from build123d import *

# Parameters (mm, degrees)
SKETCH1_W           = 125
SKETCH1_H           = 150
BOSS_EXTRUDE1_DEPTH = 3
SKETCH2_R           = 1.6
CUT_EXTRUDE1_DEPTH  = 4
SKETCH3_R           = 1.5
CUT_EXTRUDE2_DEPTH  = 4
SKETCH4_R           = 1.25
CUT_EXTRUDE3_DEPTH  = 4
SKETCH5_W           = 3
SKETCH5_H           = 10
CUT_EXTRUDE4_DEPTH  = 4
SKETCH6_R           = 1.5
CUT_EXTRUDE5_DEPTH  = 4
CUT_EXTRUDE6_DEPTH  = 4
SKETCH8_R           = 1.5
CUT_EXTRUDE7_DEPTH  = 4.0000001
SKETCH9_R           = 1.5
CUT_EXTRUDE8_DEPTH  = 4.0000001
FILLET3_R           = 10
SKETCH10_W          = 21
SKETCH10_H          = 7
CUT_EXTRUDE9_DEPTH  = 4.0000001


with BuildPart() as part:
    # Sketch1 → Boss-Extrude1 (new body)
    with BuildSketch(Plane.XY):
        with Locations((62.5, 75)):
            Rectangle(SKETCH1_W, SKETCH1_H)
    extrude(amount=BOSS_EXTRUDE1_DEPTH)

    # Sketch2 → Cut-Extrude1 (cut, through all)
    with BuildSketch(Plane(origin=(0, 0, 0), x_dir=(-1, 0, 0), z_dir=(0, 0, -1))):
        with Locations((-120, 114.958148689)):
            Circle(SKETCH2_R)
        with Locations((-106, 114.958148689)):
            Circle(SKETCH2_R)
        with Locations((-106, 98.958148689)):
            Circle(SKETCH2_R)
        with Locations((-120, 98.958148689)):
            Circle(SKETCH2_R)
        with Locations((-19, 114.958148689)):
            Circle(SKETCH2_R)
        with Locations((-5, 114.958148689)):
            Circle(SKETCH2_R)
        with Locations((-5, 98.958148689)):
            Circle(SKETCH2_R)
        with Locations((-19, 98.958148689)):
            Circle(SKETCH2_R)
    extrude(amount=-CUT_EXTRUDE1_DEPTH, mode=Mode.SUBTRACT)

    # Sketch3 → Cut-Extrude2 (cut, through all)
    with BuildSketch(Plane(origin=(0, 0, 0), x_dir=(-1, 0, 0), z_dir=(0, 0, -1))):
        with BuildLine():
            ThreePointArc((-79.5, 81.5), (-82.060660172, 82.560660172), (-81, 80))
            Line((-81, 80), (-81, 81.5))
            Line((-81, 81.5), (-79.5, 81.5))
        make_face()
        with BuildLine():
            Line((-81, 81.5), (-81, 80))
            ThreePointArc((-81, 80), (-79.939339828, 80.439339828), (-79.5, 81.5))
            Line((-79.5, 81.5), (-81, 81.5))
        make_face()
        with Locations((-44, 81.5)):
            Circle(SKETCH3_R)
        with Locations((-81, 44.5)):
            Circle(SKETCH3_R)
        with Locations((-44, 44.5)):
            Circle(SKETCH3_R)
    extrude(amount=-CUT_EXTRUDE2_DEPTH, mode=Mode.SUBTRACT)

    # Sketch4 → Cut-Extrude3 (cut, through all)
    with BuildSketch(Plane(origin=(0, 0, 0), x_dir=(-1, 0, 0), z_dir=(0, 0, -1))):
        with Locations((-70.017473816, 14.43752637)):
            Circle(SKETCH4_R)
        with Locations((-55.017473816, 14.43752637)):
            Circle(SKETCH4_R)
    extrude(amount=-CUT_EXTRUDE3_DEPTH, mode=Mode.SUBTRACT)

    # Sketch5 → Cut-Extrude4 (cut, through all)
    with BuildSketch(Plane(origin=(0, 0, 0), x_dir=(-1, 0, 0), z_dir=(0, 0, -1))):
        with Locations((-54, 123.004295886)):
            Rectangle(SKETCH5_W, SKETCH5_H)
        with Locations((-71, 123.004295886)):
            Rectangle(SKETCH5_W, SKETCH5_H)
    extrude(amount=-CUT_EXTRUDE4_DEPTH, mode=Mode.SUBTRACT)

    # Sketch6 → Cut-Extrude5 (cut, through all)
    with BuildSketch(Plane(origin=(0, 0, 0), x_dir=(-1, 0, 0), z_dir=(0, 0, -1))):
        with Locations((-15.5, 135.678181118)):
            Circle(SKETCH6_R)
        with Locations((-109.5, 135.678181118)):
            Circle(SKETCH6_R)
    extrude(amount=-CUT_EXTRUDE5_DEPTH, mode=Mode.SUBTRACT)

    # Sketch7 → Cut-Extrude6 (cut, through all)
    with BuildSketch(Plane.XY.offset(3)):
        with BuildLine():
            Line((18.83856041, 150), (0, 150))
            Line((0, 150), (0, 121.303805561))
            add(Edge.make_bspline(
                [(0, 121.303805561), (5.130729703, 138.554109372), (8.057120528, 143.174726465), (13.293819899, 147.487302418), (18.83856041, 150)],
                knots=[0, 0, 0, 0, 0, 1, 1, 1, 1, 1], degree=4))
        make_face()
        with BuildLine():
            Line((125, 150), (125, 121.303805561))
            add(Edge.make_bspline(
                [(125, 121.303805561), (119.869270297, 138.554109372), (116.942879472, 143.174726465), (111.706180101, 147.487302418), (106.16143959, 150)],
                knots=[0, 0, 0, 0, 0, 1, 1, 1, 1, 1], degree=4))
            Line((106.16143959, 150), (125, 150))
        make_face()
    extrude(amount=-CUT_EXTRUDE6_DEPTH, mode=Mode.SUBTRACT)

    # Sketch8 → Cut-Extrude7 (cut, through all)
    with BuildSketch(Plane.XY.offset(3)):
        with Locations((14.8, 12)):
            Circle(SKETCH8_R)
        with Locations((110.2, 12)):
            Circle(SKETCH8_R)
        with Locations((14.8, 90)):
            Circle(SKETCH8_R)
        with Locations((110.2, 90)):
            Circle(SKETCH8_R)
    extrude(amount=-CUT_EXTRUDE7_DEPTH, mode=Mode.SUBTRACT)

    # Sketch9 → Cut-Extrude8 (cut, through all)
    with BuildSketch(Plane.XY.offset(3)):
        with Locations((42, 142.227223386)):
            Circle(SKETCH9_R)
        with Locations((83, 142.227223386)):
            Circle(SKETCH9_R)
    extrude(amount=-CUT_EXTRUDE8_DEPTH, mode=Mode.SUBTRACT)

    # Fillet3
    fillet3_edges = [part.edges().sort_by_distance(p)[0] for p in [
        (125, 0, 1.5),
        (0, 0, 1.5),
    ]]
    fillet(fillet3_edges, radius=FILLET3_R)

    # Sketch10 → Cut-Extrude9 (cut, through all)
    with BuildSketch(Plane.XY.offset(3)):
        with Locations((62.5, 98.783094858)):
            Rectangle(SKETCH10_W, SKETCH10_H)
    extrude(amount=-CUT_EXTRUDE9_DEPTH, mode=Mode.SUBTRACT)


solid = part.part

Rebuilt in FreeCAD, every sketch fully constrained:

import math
import FreeCAD as App
import Part
import Sketcher

V = App.Vector


def edges_at(feature, points):
    """Names of the edges that pass closest to the given points."""
    edges = feature.Shape.Edges
    near = lambda p: min(range(len(edges)), key=lambda i: edges[i].distToShape(Part.Vertex(*p))[0])
    return sorted({f"Edge{near(p) + 1}" for p in points})

doc = App.newDocument("Part")
params = doc.addObject("Spreadsheet::Sheet", "Params")
for row, (alias, value) in enumerate([
    ("sketch1_width", "125 mm"),
    ("sketch1_height", "150 mm"),
    ("pad1_length", "3 mm"),
    ("sketch2_diameter", "3.2 mm"),
    ("sketch3_diameter", "3 mm"),
    ("sketch4_diameter", "2.5 mm"),
    ("sketch5_width", "3 mm"),
    ("sketch5_height", "10 mm"),
    ("sketch6_diameter", "3 mm"),
    ("sketch8_diameter", "3 mm"),
    ("sketch9_diameter", "3 mm"),
    ("fillet_radius", "10 mm"),
    ("sketch10_width", "21 mm"),
    ("sketch10_height", "7 mm"),
], start=1):
    params.set(f"A{row}", alias)
    params.set(f"B{row}", "=" + value)
    params.setAlias(f"B{row}", alias)

body = doc.addObject("PartDesign::Body", "Body")

# Sketch on XY plane
sketch1 = body.newObject("Sketcher::SketchObject", "Sketch")
sketch1.AttachmentSupport = (doc.getObject("XY_Plane"), [""])
sketch1.MapMode = "FlatFace"
sketch1.addGeometry(Part.LineSegment(V(0, 150, 0), V(0, 0, 0)), False)
sketch1.addGeometry(Part.LineSegment(V(0, 0, 0), V(125, 0, 0)), False)
sketch1.addGeometry(Part.LineSegment(V(125, 0, 0), V(125, 150, 0)), False)
sketch1.addGeometry(Part.LineSegment(V(125, 150, 0), V(0, 150, 0)), False)
sketch1.addConstraint(Sketcher.Constraint("Coincident", 0, 2, 1, 1))
sketch1.addConstraint(Sketcher.Constraint("Coincident", 1, 2, 2, 1))
sketch1.addConstraint(Sketcher.Constraint("Coincident", 2, 2, 3, 1))
sketch1.addConstraint(Sketcher.Constraint("Coincident", 3, 2, 0, 1))
sketch1.addConstraint(Sketcher.Constraint("Vertical", 0))
sketch1.addConstraint(Sketcher.Constraint("Horizontal", 1))
sketch1.addConstraint(Sketcher.Constraint("Vertical", 2))
sketch1.addConstraint(Sketcher.Constraint("Horizontal", 3))
sketch1.addConstraint(Sketcher.Constraint("Coincident", 0, 2, -1, 1))
sketch1.addConstraint(Sketcher.Constraint("DistanceX", 1, 1, 1, 2, 125.0))
sketch1.addConstraint(Sketcher.Constraint("DistanceY", 0, 2, 0, 1, 150.0))
sketch1.setExpression("Constraints[9]", "Params.sketch1_width")
sketch1.setExpression("Constraints[10]", "Params.sketch1_height")
pad1 = body.newObject("PartDesign::Pad", "Pad")
pad1.Profile = sketch1
pad1.setExpression("Length", "Params.pad1_length")

# Sketch on XY plane
sketch2 = body.newObject("Sketcher::SketchObject", "Sketch001")
sketch2.AttachmentSupport = (doc.getObject("XY_Plane"), [""])
sketch2.MapMode = "FlatFace"
sketch2.addGeometry(Part.Circle(V(120, 115, 0), V(0, 0, 1), 1.6), False)
sketch2.addGeometry(Part.Circle(V(106, 115, 0), V(0, 0, 1), 1.6), False)
sketch2.addGeometry(Part.Circle(V(106, 99, 0), V(0, 0, 1), 1.6), False)
sketch2.addGeometry(Part.Circle(V(120, 99, 0), V(0, 0, 1), 1.6), False)
sketch2.addGeometry(Part.Circle(V(19, 115, 0), V(0, 0, 1), 1.6), False)
sketch2.addGeometry(Part.Circle(V(5, 115, 0), V(0, 0, 1), 1.6), False)
sketch2.addGeometry(Part.Circle(V(5, 99, 0), V(0, 0, 1), 1.6), False)
sketch2.addGeometry(Part.Circle(V(19, 99, 0), V(0, 0, 1), 1.6), False)
sketch2.addConstraint(Sketcher.Constraint("Equal", 0, 1))
sketch2.addConstraint(Sketcher.Constraint("Equal", 1, 2))
sketch2.addConstraint(Sketcher.Constraint("Equal", 2, 3))
sketch2.addConstraint(Sketcher.Constraint("Equal", 3, 4))
sketch2.addConstraint(Sketcher.Constraint("Equal", 4, 5))
sketch2.addConstraint(Sketcher.Constraint("Equal", 5, 6))
sketch2.addConstraint(Sketcher.Constraint("Equal", 6, 7))
sketch2.addConstraint(Sketcher.Constraint("Horizontal", 0, 3, 1, 3))
sketch2.addConstraint(Sketcher.Constraint("Horizontal", 2, 3, 3, 3))
sketch2.addConstraint(Sketcher.Constraint("Horizontal", 1, 3, 4, 3))
sketch2.addConstraint(Sketcher.Constraint("Horizontal", 4, 3, 5, 3))
sketch2.addConstraint(Sketcher.Constraint("Horizontal", 3, 3, 6, 3))
sketch2.addConstraint(Sketcher.Constraint("Horizontal", 6, 3, 7, 3))
sketch2.addConstraint(Sketcher.Constraint("Vertical", 1, 3, 2, 3))
sketch2.addConstraint(Sketcher.Constraint("Vertical", 0, 3, 3, 3))
sketch2.addConstraint(Sketcher.Constraint("Vertical", 5, 3, 6, 3))
sketch2.addConstraint(Sketcher.Constraint("Vertical", 4, 3, 7, 3))
sketch2.addConstraint(Sketcher.Constraint("Diameter", 0, 3.2))
sketch2.addConstraint(Sketcher.Constraint("DistanceX", -1, 1, 0, 3, 120.0))
sketch2.addConstraint(Sketcher.Constraint("DistanceX", -1, 1, 1, 3, 106.0))
sketch2.addConstraint(Sketcher.Constraint("DistanceX", -1, 1, 4, 3, 19.0))
sketch2.addConstraint(Sketcher.Constraint("DistanceX", -1, 1, 5, 3, 5.0))
sketch2.addConstraint(Sketcher.Constraint("DistanceY", 2, 3, 1, 3, 16.0))
sketch2.addConstraint(Sketcher.Constraint("DistanceY", -1, 1, 0, 3, 114.958149))
sketch2.setExpression("Constraints[17]", "Params.sketch2_diameter")
pocket1 = body.newObject("PartDesign::Pocket", "Pocket")
pocket1.Profile = sketch2
pocket1.Type = "ThroughAll"
pocket1.Reversed = True

# Sketch on XY plane
sketch3 = body.newObject("Sketcher::SketchObject", "Sketch002")
sketch3.AttachmentSupport = (doc.getObject("XY_Plane"), [""])
sketch3.MapMode = "FlatFace"
sketch3.addGeometry(Part.ArcOfCircle(Part.Circle(V(81, 81.5, 0), V(0, 0, 1), 1.5), math.radians(-90), math.radians(180)), False)
sketch3.addGeometry(Part.ArcOfCircle(Part.Circle(V(81, 81.5, 0), V(0, 0, 1), 1.5), math.radians(180), math.radians(270)), False)
sketch3.addGeometry(Part.Circle(V(44, 81.5, 0), V(0, 0, 1), 1.5), False)
sketch3.addGeometry(Part.Circle(V(81, 44.5, 0), V(0, 0, 1), 1.5), False)
sketch3.addGeometry(Part.Circle(V(44, 44.5, 0), V(0, 0, 1), 1.5), False)
sketch3.addConstraint(Sketcher.Constraint("Tangent", 0, 1, 1, 2))
sketch3.addConstraint(Sketcher.Constraint("Coincident", 1, 1, 0, 2))
sketch3.addConstraint(Sketcher.Constraint("Equal", 1, 2))
sketch3.addConstraint(Sketcher.Constraint("Equal", 2, 3))
sketch3.addConstraint(Sketcher.Constraint("Equal", 3, 4))
sketch3.addConstraint(Sketcher.Constraint("Horizontal", 1, 3, 2, 3))
sketch3.addConstraint(Sketcher.Constraint("Horizontal", 3, 3, 4, 3))
sketch3.addConstraint(Sketcher.Constraint("Horizontal", 2, 3, 1, 1))
sketch3.addConstraint(Sketcher.Constraint("Vertical", 1, 3, 3, 3))
sketch3.addConstraint(Sketcher.Constraint("Vertical", 2, 3, 4, 3))
sketch3.addConstraint(Sketcher.Constraint("Vertical", 3, 3, 0, 1))
sketch3.addConstraint(Sketcher.Constraint("Diameter", 2, 3.0))
sketch3.addConstraint(Sketcher.Constraint("DistanceX", -1, 1, 0, 3, 81.0))
sketch3.addConstraint(Sketcher.Constraint("DistanceX", -1, 1, 2, 3, 44.0))
sketch3.addConstraint(Sketcher.Constraint("DistanceY", -1, 1, 0, 1, 80.0))
sketch3.addConstraint(Sketcher.Constraint("DistanceY", 3, 3, 1, 3, 37.0))
sketch3.setExpression("Constraints[11]", "Params.sketch3_diameter")
pocket2 = body.newObject("PartDesign::Pocket", "Pocket001")
pocket2.Profile = sketch3
pocket2.Type = "ThroughAll"
pocket2.Reversed = True

# Sketch on XY plane
sketch4 = body.newObject("Sketcher::SketchObject", "Sketch003")
sketch4.AttachmentSupport = (doc.getObject("XY_Plane"), [""])
sketch4.MapMode = "FlatFace"
sketch4.addGeometry(Part.Circle(V(70, 14.4, 0), V(0, 0, 1), 1.2), False)
sketch4.addGeometry(Part.Circle(V(55, 14.4, 0), V(0, 0, 1), 1.2), False)
sketch4.addConstraint(Sketcher.Constraint("Equal", 0, 1))
sketch4.addConstraint(Sketcher.Constraint("Horizontal", 0, 3, 1, 3))
sketch4.addConstraint(Sketcher.Constraint("Diameter", 0, 2.5))
sketch4.addConstraint(Sketcher.Constraint("DistanceX", 1, 3, 0, 3, 15.0))
sketch4.addConstraint(Sketcher.Constraint("DistanceX", -1, 1, 0, 3, 70.017474))
sketch4.addConstraint(Sketcher.Constraint("DistanceY", -1, 1, 0, 3, 14.437526))
sketch4.setExpression("Constraints[2]", "Params.sketch4_diameter")
pocket3 = body.newObject("PartDesign::Pocket", "Pocket002")
pocket3.Profile = sketch4
pocket3.Type = "ThroughAll"
pocket3.Reversed = True

# Sketch on XY plane
sketch5 = body.newObject("Sketcher::SketchObject", "Sketch004")
sketch5.AttachmentSupport = (doc.getObject("XY_Plane"), [""])
sketch5.MapMode = "FlatFace"
sketch5.addGeometry(Part.LineSegment(V(55.5, 128, 0), V(55.5, 118, 0)), False)
sketch5.addGeometry(Part.LineSegment(V(55.5, 118, 0), V(52.5, 118, 0)), False)
sketch5.addGeometry(Part.LineSegment(V(52.5, 118, 0), V(52.5, 128, 0)), False)
sketch5.addGeometry(Part.LineSegment(V(52.5, 128, 0), V(55.5, 128, 0)), False)
sketch5.addGeometry(Part.LineSegment(V(72.5, 128, 0), V(72.5, 118, 0)), False)
sketch5.addGeometry(Part.LineSegment(V(72.5, 118, 0), V(69.5, 118, 0)), False)
sketch5.addGeometry(Part.LineSegment(V(69.5, 118, 0), V(69.5, 128, 0)), False)
sketch5.addGeometry(Part.LineSegment(V(69.5, 128, 0), V(72.5, 128, 0)), False)
sketch5.addConstraint(Sketcher.Constraint("Coincident", 0, 2, 1, 1))
sketch5.addConstraint(Sketcher.Constraint("Coincident", 1, 2, 2, 1))
sketch5.addConstraint(Sketcher.Constraint("Coincident", 2, 2, 3, 1))
sketch5.addConstraint(Sketcher.Constraint("Coincident", 3, 2, 0, 1))
sketch5.addConstraint(Sketcher.Constraint("Coincident", 4, 2, 5, 1))
sketch5.addConstraint(Sketcher.Constraint("Coincident", 5, 2, 6, 1))
sketch5.addConstraint(Sketcher.Constraint("Coincident", 6, 2, 7, 1))
sketch5.addConstraint(Sketcher.Constraint("Coincident", 7, 2, 4, 1))
sketch5.addConstraint(Sketcher.Constraint("Vertical", 0))
sketch5.addConstraint(Sketcher.Constraint("Horizontal", 1))
sketch5.addConstraint(Sketcher.Constraint("Vertical", 2))
sketch5.addConstraint(Sketcher.Constraint("Horizontal", 3))
sketch5.addConstraint(Sketcher.Constraint("Vertical", 4))
sketch5.addConstraint(Sketcher.Constraint("Horizontal", 5))
sketch5.addConstraint(Sketcher.Constraint("Vertical", 6))
sketch5.addConstraint(Sketcher.Constraint("Horizontal", 7))
sketch5.addConstraint(Sketcher.Constraint("Horizontal", 1, 2, 4, 2))
sketch5.addConstraint(Sketcher.Constraint("Horizontal", 3, 2, 6, 2))
sketch5.addConstraint(Sketcher.Constraint("Equal", 3, 5))
sketch5.addConstraint(Sketcher.Constraint("DistanceX", 1, 2, 1, 1, 3.0))
sketch5.addConstraint(Sketcher.Constraint("DistanceY", 0, 2, 0, 1, 10.0))
sketch5.addConstraint(Sketcher.Constraint("DistanceX", 0, 2, 4, 2, 17.0))
sketch5.addConstraint(Sketcher.Constraint("DistanceX", -1, 1, 0, 2, 55.5))
sketch5.addConstraint(Sketcher.Constraint("DistanceY", -1, 1, 0, 2, 118.004296))
sketch5.setExpression("Constraints[19]", "Params.sketch5_width")
sketch5.setExpression("Constraints[20]", "Params.sketch5_height")
pocket4 = body.newObject("PartDesign::Pocket", "Pocket003")
pocket4.Profile = sketch5
pocket4.Type = "ThroughAll"
pocket4.Reversed = True

# Sketch on XY plane
sketch6 = body.newObject("Sketcher::SketchObject", "Sketch005")
sketch6.AttachmentSupport = (doc.getObject("XY_Plane"), [""])
sketch6.MapMode = "FlatFace"
sketch6.addGeometry(Part.Circle(V(15.5, 135.7, 0), V(0, 0, 1), 1.5), False)
sketch6.addGeometry(Part.Circle(V(109.5, 135.7, 0), V(0, 0, 1), 1.5), False)
sketch6.addConstraint(Sketcher.Constraint("Equal", 0, 1))
sketch6.addConstraint(Sketcher.Constraint("Horizontal", 0, 3, 1, 3))
sketch6.addConstraint(Sketcher.Constraint("Diameter", 0, 3.0))
sketch6.addConstraint(Sketcher.Constraint("DistanceX", 0, 3, 1, 3, 94.0))
sketch6.addConstraint(Sketcher.Constraint("DistanceX", -1, 1, 0, 3, 15.5))
sketch6.addConstraint(Sketcher.Constraint("DistanceY", -1, 1, 0, 3, 135.678181))
sketch6.setExpression("Constraints[2]", "Params.sketch6_diameter")
pocket5 = body.newObject("PartDesign::Pocket", "Pocket004")
pocket5.Profile = sketch6
pocket5.Type = "ThroughAll"
pocket5.Reversed = True

# Sketch on XY plane
sketch7 = body.newObject("Sketcher::SketchObject", "Sketch006")
sketch7.AttachmentSupport = (doc.getObject("XY_Plane"), [""])
sketch7.MapMode = "FlatFace"
sketch7.AttachmentOffset = App.Placement(V(0, 0, 3), App.Rotation())
sketch7.addGeometry(Part.LineSegment(V(18.83856, 150, 0), V(0, 150, 0)), False)
sketch7.addGeometry(Part.LineSegment(V(0, 150, 0), V(0, 121.303806, 0)), False)
sketch7.addGeometry(Part.BSplineCurve([V(0, 121.303806, 0), V(5.13073, 138.554109, 0), V(8.057121, 143.174726, 0), V(13.29382, 147.487302, 0), V(18.83856, 150, 0)], [5, 5], [0, 1], False, 4, [1, 1, 1, 1, 1], False), False)
sketch7.addGeometry(Part.LineSegment(V(125, 121.303806, 0), V(125, 150, 0)), False)
sketch7.addGeometry(Part.LineSegment(V(125, 150, 0), V(106.16144, 150, 0)), False)
sketch7.addGeometry(Part.BSplineCurve([V(125, 121.303806, 0), V(119.86927, 138.554109, 0), V(116.942879, 143.174726, 0), V(111.70618, 147.487302, 0), V(106.16144, 150, 0)], [5, 5], [0, 1], False, 4, [1, 1, 1, 1, 1], False), False)
sketch7.addConstraint(Sketcher.Constraint("Block", 2))
sketch7.addConstraint(Sketcher.Constraint("Block", 5))
sketch7.addConstraint(Sketcher.Constraint("Coincident", 0, 2, 1, 1))
sketch7.addConstraint(Sketcher.Constraint("Coincident", 1, 2, 2, 1))
sketch7.addConstraint(Sketcher.Constraint("Coincident", 2, 2, 0, 1))
sketch7.addConstraint(Sketcher.Constraint("Coincident", 3, 2, 4, 1))
sketch7.addConstraint(Sketcher.Constraint("Coincident", 4, 2, 5, 2))
sketch7.addConstraint(Sketcher.Constraint("Coincident", 5, 1, 3, 1))
sketch7.addConstraint(Sketcher.Constraint("Horizontal", 0))
sketch7.addConstraint(Sketcher.Constraint("Vertical", 1))
sketch7.addConstraint(Sketcher.Constraint("Vertical", 3))
sketch7.addConstraint(Sketcher.Constraint("Horizontal", 4))
pocket6 = body.newObject("PartDesign::Pocket", "Pocket005")
pocket6.Profile = sketch7
pocket6.Type = "ThroughAll"

# Sketch on XY plane
sketch8 = body.newObject("Sketcher::SketchObject", "Sketch007")
sketch8.AttachmentSupport = (doc.getObject("XY_Plane"), [""])
sketch8.MapMode = "FlatFace"
sketch8.AttachmentOffset = App.Placement(V(0, 0, 3), App.Rotation())
sketch8.addGeometry(Part.Circle(V(14.8, 12, 0), V(0, 0, 1), 1.5), False)
sketch8.addGeometry(Part.Circle(V(110.2, 12, 0), V(0, 0, 1), 1.5), False)
sketch8.addGeometry(Part.Circle(V(14.8, 90, 0), V(0, 0, 1), 1.5), False)
sketch8.addGeometry(Part.Circle(V(110.2, 90, 0), V(0, 0, 1), 1.5), False)
sketch8.addConstraint(Sketcher.Constraint("Equal", 0, 1))
sketch8.addConstraint(Sketcher.Constraint("Equal", 1, 2))
sketch8.addConstraint(Sketcher.Constraint("Equal", 2, 3))
sketch8.addConstraint(Sketcher.Constraint("Horizontal", 0, 3, 1, 3))
sketch8.addConstraint(Sketcher.Constraint("Horizontal", 2, 3, 3, 3))
sketch8.addConstraint(Sketcher.Constraint("Vertical", 0, 3, 2, 3))
sketch8.addConstraint(Sketcher.Constraint("Vertical", 1, 3, 3, 3))
sketch8.addConstraint(Sketcher.Constraint("Diameter", 0, 3.0))
sketch8.addConstraint(Sketcher.Constraint("DistanceY", -1, 1, 0, 3, 12.0))
sketch8.addConstraint(Sketcher.Constraint("DistanceY", -1, 1, 2, 3, 90.0))
sketch8.addConstraint(Sketcher.Constraint("DistanceX", -1, 1, 0, 3, 14.8))
sketch8.addConstraint(Sketcher.Constraint("DistanceX", -1, 1, 1, 3, 110.2))
sketch8.setExpression("Constraints[7]", "Params.sketch8_diameter")
pocket7 = body.newObject("PartDesign::Pocket", "Pocket006")
pocket7.Profile = sketch8
pocket7.Type = "ThroughAll"

# Sketch on XY plane
sketch9 = body.newObject("Sketcher::SketchObject", "Sketch008")
sketch9.AttachmentSupport = (doc.getObject("XY_Plane"), [""])
sketch9.MapMode = "FlatFace"
sketch9.AttachmentOffset = App.Placement(V(0, 0, 3), App.Rotation())
sketch9.addGeometry(Part.Circle(V(42, 142.2, 0), V(0, 0, 1), 1.5), False)
sketch9.addGeometry(Part.Circle(V(83, 142.2, 0), V(0, 0, 1), 1.5), False)
sketch9.addConstraint(Sketcher.Constraint("Equal", 0, 1))
sketch9.addConstraint(Sketcher.Constraint("Horizontal", 0, 3, 1, 3))
sketch9.addConstraint(Sketcher.Constraint("Diameter", 0, 3.0))
sketch9.addConstraint(Sketcher.Constraint("DistanceX", -1, 1, 0, 3, 42.0))
sketch9.addConstraint(Sketcher.Constraint("DistanceX", -1, 1, 1, 3, 83.0))
sketch9.addConstraint(Sketcher.Constraint("DistanceY", -1, 1, 0, 3, 142.227223))
sketch9.setExpression("Constraints[2]", "Params.sketch9_diameter")
pocket8 = body.newObject("PartDesign::Pocket", "Pocket007")
pocket8.Profile = sketch9
pocket8.Type = "ThroughAll"
doc.recompute()

fillet = body.newObject("PartDesign::Fillet", "Fillet")
fillet.Base = (pocket8, edges_at(pocket8, [(125, 0, 1.5), (0, 0, 1.5)]))
fillet.setExpression("Radius", "Params.fillet_radius")

# Sketch on XY plane
sketch10 = body.newObject("Sketcher::SketchObject", "Sketch009")
sketch10.AttachmentSupport = (doc.getObject("XY_Plane"), [""])
sketch10.MapMode = "FlatFace"
sketch10.AttachmentOffset = App.Placement(V(0, 0, 3), App.Rotation())
sketch10.addGeometry(Part.LineSegment(V(52, 102, 0), V(52, 95, 0)), False)
sketch10.addGeometry(Part.LineSegment(V(52, 95, 0), V(73, 95, 0)), False)
sketch10.addGeometry(Part.LineSegment(V(73, 95, 0), V(73, 102, 0)), False)
sketch10.addGeometry(Part.LineSegment(V(73, 102, 0), V(52, 102, 0)), False)
sketch10.addConstraint(Sketcher.Constraint("Coincident", 0, 2, 1, 1))
sketch10.addConstraint(Sketcher.Constraint("Coincident", 1, 2, 2, 1))
sketch10.addConstraint(Sketcher.Constraint("Coincident", 2, 2, 3, 1))
sketch10.addConstraint(Sketcher.Constraint("Coincident", 3, 2, 0, 1))
sketch10.addConstraint(Sketcher.Constraint("Vertical", 0))
sketch10.addConstraint(Sketcher.Constraint("Horizontal", 1))
sketch10.addConstraint(Sketcher.Constraint("Vertical", 2))
sketch10.addConstraint(Sketcher.Constraint("Horizontal", 3))
sketch10.addConstraint(Sketcher.Constraint("DistanceX", 1, 1, 1, 2, 21.0))
sketch10.addConstraint(Sketcher.Constraint("DistanceY", 0, 2, 0, 1, 7.0))
sketch10.addConstraint(Sketcher.Constraint("DistanceX", -1, 1, 0, 2, 52.0))
sketch10.addConstraint(Sketcher.Constraint("DistanceY", -1, 1, 0, 2, 95.283095))
sketch10.setExpression("Constraints[8]", "Params.sketch10_width")
sketch10.setExpression("Constraints[9]", "Params.sketch10_height")
pocket9 = body.newObject("PartDesign::Pocket", "Pocket008")
pocket9.Profile = sketch10
pocket9.Type = "ThroughAll"

doc.recompute()
